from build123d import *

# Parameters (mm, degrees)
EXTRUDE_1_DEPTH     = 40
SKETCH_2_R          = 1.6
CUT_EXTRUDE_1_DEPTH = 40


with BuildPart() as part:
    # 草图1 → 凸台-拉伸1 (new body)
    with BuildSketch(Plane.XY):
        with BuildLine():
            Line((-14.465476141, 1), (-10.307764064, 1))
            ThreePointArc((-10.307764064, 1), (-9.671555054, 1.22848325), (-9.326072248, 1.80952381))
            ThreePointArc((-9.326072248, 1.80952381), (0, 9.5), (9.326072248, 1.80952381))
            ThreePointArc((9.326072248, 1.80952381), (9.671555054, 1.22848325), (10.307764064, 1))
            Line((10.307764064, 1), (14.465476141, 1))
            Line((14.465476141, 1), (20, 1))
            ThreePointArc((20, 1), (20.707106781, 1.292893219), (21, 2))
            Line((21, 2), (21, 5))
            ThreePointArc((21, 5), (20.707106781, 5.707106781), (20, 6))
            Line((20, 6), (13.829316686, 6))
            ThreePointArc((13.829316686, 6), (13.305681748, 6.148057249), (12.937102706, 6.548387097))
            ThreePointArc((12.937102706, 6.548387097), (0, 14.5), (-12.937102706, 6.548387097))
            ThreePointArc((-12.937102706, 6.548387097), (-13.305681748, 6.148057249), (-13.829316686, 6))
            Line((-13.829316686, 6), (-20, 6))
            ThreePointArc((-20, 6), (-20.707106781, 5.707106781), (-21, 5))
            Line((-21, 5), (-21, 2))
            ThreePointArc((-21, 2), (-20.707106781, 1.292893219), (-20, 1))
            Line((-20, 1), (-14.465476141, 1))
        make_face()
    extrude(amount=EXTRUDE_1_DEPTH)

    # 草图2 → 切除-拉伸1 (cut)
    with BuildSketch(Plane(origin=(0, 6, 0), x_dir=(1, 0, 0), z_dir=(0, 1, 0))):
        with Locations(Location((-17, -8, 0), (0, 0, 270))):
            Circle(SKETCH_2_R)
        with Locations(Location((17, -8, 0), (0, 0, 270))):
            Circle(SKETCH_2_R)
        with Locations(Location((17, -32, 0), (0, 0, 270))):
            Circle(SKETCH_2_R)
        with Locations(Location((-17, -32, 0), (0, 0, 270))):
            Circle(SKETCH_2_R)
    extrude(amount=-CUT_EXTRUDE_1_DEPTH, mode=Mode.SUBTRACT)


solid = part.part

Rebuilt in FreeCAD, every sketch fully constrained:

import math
import FreeCAD as App
import Part
import Sketcher
Q = App.Units.Quantity

doc = App.newDocument("Part")
body = doc.addObject("PartDesign::Body", "Body")

# Sketch on XY plane
sketch1 = body.newObject("Sketcher::SketchObject", "Sketch")
sketch1.AttachmentSupport = (doc.getObject("XY_Plane"), [""])
sketch1.MapMode = "FlatFace"
sketch1.addGeometry([
    Part.ArcOfCircle(Part.Circle(App.Vector(-10.3, 2, 0), App.Vector(0, 0, 1), 1), math.radians(-90), math.radians(-11)),  # 0
    Part.ArcOfCircle(Part.Circle(App.Vector(0, 0, 0), App.Vector(0, 0, 1), 9.5), math.radians(11), math.radians(169)),  # 1
    Part.ArcOfCircle(Part.Circle(App.Vector(10.3, 2, 0), App.Vector(0, 0, 1), 1), math.radians(-169), math.radians(-90)),  # 2
    Part.LineSegment(App.Vector(10.3, 1, 0), App.Vector(20, 1, 0)),  # 3
    Part.ArcOfCircle(Part.Circle(App.Vector(20, 2, 0), App.Vector(0, 0, 1), 1), math.radians(-90), math.radians(0)),  # 4
    Part.LineSegment(App.Vector(21, 2, 0), App.Vector(21, 5, 0)),  # 5
    Part.ArcOfCircle(Part.Circle(App.Vector(20, 5, 0), App.Vector(0, 0, 1), 1), math.radians(0), math.radians(90)),  # 6
    Part.LineSegment(App.Vector(20, 6, 0), App.Vector(13.8, 6, 0)),  # 7
    Part.ArcOfCircle(Part.Circle(App.Vector(13.8, 7, 0), App.Vector(0, 0, 1), 1), math.radians(-153), math.radians(-90)),  # 8
    Part.ArcOfCircle(Part.Circle(App.Vector(0, 0, 0), App.Vector(0, 0, 1), 14.5), math.radians(27), math.radians(153)),  # 9
    Part.ArcOfCircle(Part.Circle(App.Vector(-13.8, 7, 0), App.Vector(0, 0, 1), 1), math.radians(-90), math.radians(-27)),  # 10
    Part.LineSegment(App.Vector(-13.8, 6, 0), App.Vector(-20, 6, 0)),  # 11
    Part.ArcOfCircle(Part.Circle(App.Vector(-20, 5, 0), App.Vector(0, 0, 1), 1), math.radians(90), math.radians(180)),  # 12
    Part.LineSegment(App.Vector(-21, 5, 0), App.Vector(-21, 2, 0)),  # 13
    Part.ArcOfCircle(Part.Circle(App.Vector(-20, 2, 0), App.Vector(0, 0, 1), 1), math.radians(-180), math.radians(-90)),  # 14
    Part.LineSegment(App.Vector(-20, 1, 0), App.Vector(-10.3, 1, 0)),  # 15
], False)
sketch1.addConstraint([
    Sketcher.Constraint("Tangent", 0, 2, 1, 2),
    Sketcher.Constraint("Tangent", 1, 1, 2, 1),
    Sketcher.Constraint("Tangent", 2, 2, 3, 1),
    Sketcher.Constraint("Tangent", 3, 2, 4, 1),
    Sketcher.Constraint("Tangent", 4, 2, 5, 1),
    Sketcher.Constraint("Tangent", 5, 2, 6, 1),
    Sketcher.Constraint("Tangent", 6, 2, 7, 1),
    Sketcher.Constraint("Tangent", 7, 2, 8, 2),
    Sketcher.Constraint("Tangent", 8, 1, 9, 1),
    Sketcher.Constraint("Tangent", 9, 2, 10, 2),
    Sketcher.Constraint("Tangent", 10, 1, 11, 1),
    Sketcher.Constraint("Tangent", 11, 2, 12, 1),
    Sketcher.Constraint("Tangent", 12, 2, 13, 1),
    Sketcher.Constraint("Tangent", 13, 2, 14, 1),
    Sketcher.Constraint("Tangent", 14, 2, 15, 1),
    Sketcher.Constraint("Tangent", 15, 2, 0, 1),
    Sketcher.Constraint("Horizontal", 3),
    Sketcher.Constraint("Vertical", 5),
    Sketcher.Constraint("Horizontal", 7),
    Sketcher.Constraint("Horizontal", 11),
    Sketcher.Constraint("Vertical", 13),
    Sketcher.Constraint("Horizontal", 15),
    Sketcher.Constraint("Coincident", 1, 3, -1, 1),
    Sketcher.Constraint("Coincident", 9, 3, -1, 1),
    Sketcher.Constraint("Equal", 0, 2),
    Sketcher.Constraint("Equal", 2, 4),
    Sketcher.Constraint("Equal", 4, 6),
    Sketcher.Constraint("Equal", 6, 8),
    Sketcher.Constraint("Equal", 8, 10),
    Sketcher.Constraint("Equal", 10, 12),
    Sketcher.Constraint("Equal", 12, 14),
    Sketcher.Constraint("Symmetric", 6, 3, 12, 3, -2),
    Sketcher.Constraint("Horizontal", 0, 3, 2, 3),
    Sketcher.Constraint("Radius", 0, Q("1 mm")),
    Sketcher.Constraint("Radius", 1, Q("9.5 mm")),
    Sketcher.Constraint("Radius", 9, Q("14.5 mm")),
    Sketcher.Constraint("DistanceY", 5, 1, 5, 2, Q("3 mm")),
    Sketcher.Constraint("DistanceY", -1, 1, 0, 3, Q("2 mm")),
    Sketcher.Constraint("DistanceX", -1, 1, 4, 3, Q("20 mm")),
])
pad1 = body.newObject("PartDesign::Pad", "Pad")
pad1.Profile = sketch1
pad1.Length = 40

# Sketch on XZ plane
sketch2 = body.newObject("Sketcher::SketchObject", "Sketch001")
sketch2.AttachmentSupport = (doc.getObject("XZ_Plane"), [""])
sketch2.MapMode = "FlatFace"
sketch2.AttachmentOffset = App.Placement(App.Vector(0, 0, -6), App.Rotation())
sketch2.addGeometry([
    Part.Circle(App.Vector(-17, 8, 0), App.Vector(0, 0, 1), 1.6),
    Part.Circle(App.Vector(17, 8, 0), App.Vector(0, 0, 1), 1.6),
    Part.Circle(App.Vector(17, 32, 0), App.Vector(0, 0, 1), 1.6),
    Part.Circle(App.Vector(-17, 32, 0), App.Vector(0, 0, 1), 1.6),
], False)
sketch2.addConstraint([
    Sketcher.Constraint("Equal", 0, 1),
    Sketcher.Constraint("Equal", 1, 2),
    Sketcher.Constraint("Equal", 2, 3),
    Sketcher.Constraint("Symmetric", 0, 3, 1, 3, -2),
    Sketcher.Constraint("Symmetric", 2, 3, 3, 3, -2),
    Sketcher.Constraint("Vertical", 1, 3, 2, 3),
    Sketcher.Constraint("Diameter", 0, Q("3.2 mm")),
    Sketcher.Constraint("DistanceX", 0, 3, -1, 1, Q("17 mm")),
    Sketcher.Constraint("DistanceY", -1, 1, 0, 3, Q("8 mm")),
    Sketcher.Constraint("DistanceY", -1, 1, 2, 3, Q("32 mm")),
])
pocket1 = body.newObject("PartDesign::Pocket", "Pocket")
pocket1.Profile = sketch2
pocket1.Length = 40
pocket1.Reversed = True

doc.recompute()
